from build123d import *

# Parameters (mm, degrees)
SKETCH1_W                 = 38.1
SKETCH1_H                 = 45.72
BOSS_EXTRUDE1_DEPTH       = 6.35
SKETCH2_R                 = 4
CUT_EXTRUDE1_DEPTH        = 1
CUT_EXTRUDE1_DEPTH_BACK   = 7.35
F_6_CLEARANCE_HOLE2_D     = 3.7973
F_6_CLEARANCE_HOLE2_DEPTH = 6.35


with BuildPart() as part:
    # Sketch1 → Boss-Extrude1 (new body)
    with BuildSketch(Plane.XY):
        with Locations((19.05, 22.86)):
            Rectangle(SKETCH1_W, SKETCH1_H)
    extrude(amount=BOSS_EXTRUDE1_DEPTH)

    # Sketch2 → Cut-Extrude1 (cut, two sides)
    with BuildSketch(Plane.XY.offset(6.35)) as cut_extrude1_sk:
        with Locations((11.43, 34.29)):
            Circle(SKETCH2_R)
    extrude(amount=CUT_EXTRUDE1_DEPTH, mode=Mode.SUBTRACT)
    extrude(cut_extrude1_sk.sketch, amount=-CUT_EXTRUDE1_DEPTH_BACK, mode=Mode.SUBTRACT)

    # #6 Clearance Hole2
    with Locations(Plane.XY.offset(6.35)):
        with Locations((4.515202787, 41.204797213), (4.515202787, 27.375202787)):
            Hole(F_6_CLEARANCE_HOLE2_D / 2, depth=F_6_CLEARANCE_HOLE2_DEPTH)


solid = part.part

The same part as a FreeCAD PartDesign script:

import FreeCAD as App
import Part
import Sketcher
Q = App.Units.Quantity


def add_polygon(sketch, points):
    """Adds a closed chain of lines whose ends are joined by coincident constraints."""
    first, n = sketch.GeometryCount, len(points)
    for a, b in zip(points, points[1:] + points[:1]):
        sketch.addGeometry(Part.LineSegment(App.Vector(*a, 0), App.Vector(*b, 0)), False)
    for i in range(n):
        sketch.addConstraint(Sketcher.Constraint("Coincident", first + i, 2, first + (i + 1) % n, 1))

doc = App.newDocument("Part")
params = doc.addObject("Spreadsheet::Sheet", "Params")
for row, (alias, value) in enumerate([
    ("sketch1_width", "1.5 in"),
    ("sketch1_height", "1.8 in"),
    ("pad1_length", "0.25 in"),
    ("hole_diameter", "0.1495 in"),
    ("hole_depth", "0.25 in"),
], start=1):
    params.set(f"A{row}", alias)
    params.set(f"B{row}", "=" + value)
    params.setAlias(f"B{row}", alias)

body = doc.addObject("PartDesign::Body", "Body")

# Sketch on XY plane
sketch1 = body.newObject("Sketcher::SketchObject", "Sketch")
sketch1.AttachmentSupport = (doc.getObject("XY_Plane"), [""])
sketch1.MapMode = "FlatFace"
add_polygon(sketch1, [(0, 46), (0, 0), (38, 0), (38, 46)])  # lines 0-3
sketch1.addConstraint([
    Sketcher.Constraint("Vertical", 0),
    Sketcher.Constraint("Horizontal", 1),
    Sketcher.Constraint("Vertical", 2),
    Sketcher.Constraint("Horizontal", 3),
    Sketcher.Constraint("Coincident", 0, 2, -1, 1),
    Sketcher.Constraint("DistanceX", 1, 1, 1, 2, Q("1.5 in")),
    Sketcher.Constraint("DistanceY", 0, 2, 0, 1, Q("1.8 in")),
])
sketch1.setExpression("Constraints[9]", "Params.sketch1_width")
sketch1.setExpression("Constraints[10]", "Params.sketch1_height")
pad1 = body.newObject("PartDesign::Pad", "Pad")
pad1.Profile = sketch1
pad1.setExpression("Length", "Params.pad1_length")

# Sketch on XY plane
sketch2 = body.newObject("Sketcher::SketchObject", "Sketch001")
sketch2.AttachmentSupport = (doc.getObject("XY_Plane"), [""])
sketch2.MapMode = "FlatFace"
sketch2.AttachmentOffset = App.Placement(App.Vector(0, 0, 0.25 * 25.4), App.Rotation())
sketch2.addGeometry(Part.Circle(App.Vector(11.4, 34.3, 0), App.Vector(0, 0, 1), 4), False)
sketch2.addConstraint([
    Sketcher.Constraint("Diameter", 0, Q("8 mm")),
    Sketcher.Constraint("DistanceX", -1, 1, 0, 3, Q("0.45 in")),
    Sketcher.Constraint("DistanceY", -1, 1, 0, 3, Q("1.35 in")),
])
pocket1 = body.newObject("PartDesign::Pocket", "Pocket")
pocket1.Profile = sketch2
pocket1.Type = "ThroughAll"
pocket1.Midplane = True

# Sketch on XY plane
sketch3 = body.newObject("Sketcher::SketchObject", "Sketch002")
sketch3.AttachmentSupport = (doc.getObject("XY_Plane"), [""])
sketch3.MapMode = "FlatFace"
sketch3.AttachmentOffset = App.Placement(App.Vector(0, 0, 0.25 * 25.4), App.Rotation())
sketch3.addGeometry([
    Part.Circle(App.Vector(4.5, 41.2, 0), App.Vector(0, 0, 1), 1.9),
    Part.Circle(App.Vector(4.5, 27.4, 0), App.Vector(0, 0, 1), 1.9),
], False)
sketch3.addConstraint([
    Sketcher.Constraint("Equal", 0, 1),
    Sketcher.Constraint("Vertical", 0, 3, 1, 3),
    Sketcher.Constraint("Diameter", 0, Q("0.1495 in")),
    Sketcher.Constraint("DistanceX", -1, 1, 0, 3, Q("4.515203 mm")),
    Sketcher.Constraint("DistanceY", -1, 1, 0, 3, Q("41.204797 mm")),
    Sketcher.Constraint("DistanceY", -1, 1, 1, 3, Q("27.375203 mm")),
])
doc.recompute()
hole = body.newObject("PartDesign::Hole", "Hole")
hole.Profile = sketch3
hole.ThreadType = "None"
hole.setExpression("Diameter", "Params.hole_diameter")
hole.DepthType = "Dimension"
hole.setExpression("Depth", "Params.hole_depth")
hole.DrillPoint = "Flat"

doc.recompute()
